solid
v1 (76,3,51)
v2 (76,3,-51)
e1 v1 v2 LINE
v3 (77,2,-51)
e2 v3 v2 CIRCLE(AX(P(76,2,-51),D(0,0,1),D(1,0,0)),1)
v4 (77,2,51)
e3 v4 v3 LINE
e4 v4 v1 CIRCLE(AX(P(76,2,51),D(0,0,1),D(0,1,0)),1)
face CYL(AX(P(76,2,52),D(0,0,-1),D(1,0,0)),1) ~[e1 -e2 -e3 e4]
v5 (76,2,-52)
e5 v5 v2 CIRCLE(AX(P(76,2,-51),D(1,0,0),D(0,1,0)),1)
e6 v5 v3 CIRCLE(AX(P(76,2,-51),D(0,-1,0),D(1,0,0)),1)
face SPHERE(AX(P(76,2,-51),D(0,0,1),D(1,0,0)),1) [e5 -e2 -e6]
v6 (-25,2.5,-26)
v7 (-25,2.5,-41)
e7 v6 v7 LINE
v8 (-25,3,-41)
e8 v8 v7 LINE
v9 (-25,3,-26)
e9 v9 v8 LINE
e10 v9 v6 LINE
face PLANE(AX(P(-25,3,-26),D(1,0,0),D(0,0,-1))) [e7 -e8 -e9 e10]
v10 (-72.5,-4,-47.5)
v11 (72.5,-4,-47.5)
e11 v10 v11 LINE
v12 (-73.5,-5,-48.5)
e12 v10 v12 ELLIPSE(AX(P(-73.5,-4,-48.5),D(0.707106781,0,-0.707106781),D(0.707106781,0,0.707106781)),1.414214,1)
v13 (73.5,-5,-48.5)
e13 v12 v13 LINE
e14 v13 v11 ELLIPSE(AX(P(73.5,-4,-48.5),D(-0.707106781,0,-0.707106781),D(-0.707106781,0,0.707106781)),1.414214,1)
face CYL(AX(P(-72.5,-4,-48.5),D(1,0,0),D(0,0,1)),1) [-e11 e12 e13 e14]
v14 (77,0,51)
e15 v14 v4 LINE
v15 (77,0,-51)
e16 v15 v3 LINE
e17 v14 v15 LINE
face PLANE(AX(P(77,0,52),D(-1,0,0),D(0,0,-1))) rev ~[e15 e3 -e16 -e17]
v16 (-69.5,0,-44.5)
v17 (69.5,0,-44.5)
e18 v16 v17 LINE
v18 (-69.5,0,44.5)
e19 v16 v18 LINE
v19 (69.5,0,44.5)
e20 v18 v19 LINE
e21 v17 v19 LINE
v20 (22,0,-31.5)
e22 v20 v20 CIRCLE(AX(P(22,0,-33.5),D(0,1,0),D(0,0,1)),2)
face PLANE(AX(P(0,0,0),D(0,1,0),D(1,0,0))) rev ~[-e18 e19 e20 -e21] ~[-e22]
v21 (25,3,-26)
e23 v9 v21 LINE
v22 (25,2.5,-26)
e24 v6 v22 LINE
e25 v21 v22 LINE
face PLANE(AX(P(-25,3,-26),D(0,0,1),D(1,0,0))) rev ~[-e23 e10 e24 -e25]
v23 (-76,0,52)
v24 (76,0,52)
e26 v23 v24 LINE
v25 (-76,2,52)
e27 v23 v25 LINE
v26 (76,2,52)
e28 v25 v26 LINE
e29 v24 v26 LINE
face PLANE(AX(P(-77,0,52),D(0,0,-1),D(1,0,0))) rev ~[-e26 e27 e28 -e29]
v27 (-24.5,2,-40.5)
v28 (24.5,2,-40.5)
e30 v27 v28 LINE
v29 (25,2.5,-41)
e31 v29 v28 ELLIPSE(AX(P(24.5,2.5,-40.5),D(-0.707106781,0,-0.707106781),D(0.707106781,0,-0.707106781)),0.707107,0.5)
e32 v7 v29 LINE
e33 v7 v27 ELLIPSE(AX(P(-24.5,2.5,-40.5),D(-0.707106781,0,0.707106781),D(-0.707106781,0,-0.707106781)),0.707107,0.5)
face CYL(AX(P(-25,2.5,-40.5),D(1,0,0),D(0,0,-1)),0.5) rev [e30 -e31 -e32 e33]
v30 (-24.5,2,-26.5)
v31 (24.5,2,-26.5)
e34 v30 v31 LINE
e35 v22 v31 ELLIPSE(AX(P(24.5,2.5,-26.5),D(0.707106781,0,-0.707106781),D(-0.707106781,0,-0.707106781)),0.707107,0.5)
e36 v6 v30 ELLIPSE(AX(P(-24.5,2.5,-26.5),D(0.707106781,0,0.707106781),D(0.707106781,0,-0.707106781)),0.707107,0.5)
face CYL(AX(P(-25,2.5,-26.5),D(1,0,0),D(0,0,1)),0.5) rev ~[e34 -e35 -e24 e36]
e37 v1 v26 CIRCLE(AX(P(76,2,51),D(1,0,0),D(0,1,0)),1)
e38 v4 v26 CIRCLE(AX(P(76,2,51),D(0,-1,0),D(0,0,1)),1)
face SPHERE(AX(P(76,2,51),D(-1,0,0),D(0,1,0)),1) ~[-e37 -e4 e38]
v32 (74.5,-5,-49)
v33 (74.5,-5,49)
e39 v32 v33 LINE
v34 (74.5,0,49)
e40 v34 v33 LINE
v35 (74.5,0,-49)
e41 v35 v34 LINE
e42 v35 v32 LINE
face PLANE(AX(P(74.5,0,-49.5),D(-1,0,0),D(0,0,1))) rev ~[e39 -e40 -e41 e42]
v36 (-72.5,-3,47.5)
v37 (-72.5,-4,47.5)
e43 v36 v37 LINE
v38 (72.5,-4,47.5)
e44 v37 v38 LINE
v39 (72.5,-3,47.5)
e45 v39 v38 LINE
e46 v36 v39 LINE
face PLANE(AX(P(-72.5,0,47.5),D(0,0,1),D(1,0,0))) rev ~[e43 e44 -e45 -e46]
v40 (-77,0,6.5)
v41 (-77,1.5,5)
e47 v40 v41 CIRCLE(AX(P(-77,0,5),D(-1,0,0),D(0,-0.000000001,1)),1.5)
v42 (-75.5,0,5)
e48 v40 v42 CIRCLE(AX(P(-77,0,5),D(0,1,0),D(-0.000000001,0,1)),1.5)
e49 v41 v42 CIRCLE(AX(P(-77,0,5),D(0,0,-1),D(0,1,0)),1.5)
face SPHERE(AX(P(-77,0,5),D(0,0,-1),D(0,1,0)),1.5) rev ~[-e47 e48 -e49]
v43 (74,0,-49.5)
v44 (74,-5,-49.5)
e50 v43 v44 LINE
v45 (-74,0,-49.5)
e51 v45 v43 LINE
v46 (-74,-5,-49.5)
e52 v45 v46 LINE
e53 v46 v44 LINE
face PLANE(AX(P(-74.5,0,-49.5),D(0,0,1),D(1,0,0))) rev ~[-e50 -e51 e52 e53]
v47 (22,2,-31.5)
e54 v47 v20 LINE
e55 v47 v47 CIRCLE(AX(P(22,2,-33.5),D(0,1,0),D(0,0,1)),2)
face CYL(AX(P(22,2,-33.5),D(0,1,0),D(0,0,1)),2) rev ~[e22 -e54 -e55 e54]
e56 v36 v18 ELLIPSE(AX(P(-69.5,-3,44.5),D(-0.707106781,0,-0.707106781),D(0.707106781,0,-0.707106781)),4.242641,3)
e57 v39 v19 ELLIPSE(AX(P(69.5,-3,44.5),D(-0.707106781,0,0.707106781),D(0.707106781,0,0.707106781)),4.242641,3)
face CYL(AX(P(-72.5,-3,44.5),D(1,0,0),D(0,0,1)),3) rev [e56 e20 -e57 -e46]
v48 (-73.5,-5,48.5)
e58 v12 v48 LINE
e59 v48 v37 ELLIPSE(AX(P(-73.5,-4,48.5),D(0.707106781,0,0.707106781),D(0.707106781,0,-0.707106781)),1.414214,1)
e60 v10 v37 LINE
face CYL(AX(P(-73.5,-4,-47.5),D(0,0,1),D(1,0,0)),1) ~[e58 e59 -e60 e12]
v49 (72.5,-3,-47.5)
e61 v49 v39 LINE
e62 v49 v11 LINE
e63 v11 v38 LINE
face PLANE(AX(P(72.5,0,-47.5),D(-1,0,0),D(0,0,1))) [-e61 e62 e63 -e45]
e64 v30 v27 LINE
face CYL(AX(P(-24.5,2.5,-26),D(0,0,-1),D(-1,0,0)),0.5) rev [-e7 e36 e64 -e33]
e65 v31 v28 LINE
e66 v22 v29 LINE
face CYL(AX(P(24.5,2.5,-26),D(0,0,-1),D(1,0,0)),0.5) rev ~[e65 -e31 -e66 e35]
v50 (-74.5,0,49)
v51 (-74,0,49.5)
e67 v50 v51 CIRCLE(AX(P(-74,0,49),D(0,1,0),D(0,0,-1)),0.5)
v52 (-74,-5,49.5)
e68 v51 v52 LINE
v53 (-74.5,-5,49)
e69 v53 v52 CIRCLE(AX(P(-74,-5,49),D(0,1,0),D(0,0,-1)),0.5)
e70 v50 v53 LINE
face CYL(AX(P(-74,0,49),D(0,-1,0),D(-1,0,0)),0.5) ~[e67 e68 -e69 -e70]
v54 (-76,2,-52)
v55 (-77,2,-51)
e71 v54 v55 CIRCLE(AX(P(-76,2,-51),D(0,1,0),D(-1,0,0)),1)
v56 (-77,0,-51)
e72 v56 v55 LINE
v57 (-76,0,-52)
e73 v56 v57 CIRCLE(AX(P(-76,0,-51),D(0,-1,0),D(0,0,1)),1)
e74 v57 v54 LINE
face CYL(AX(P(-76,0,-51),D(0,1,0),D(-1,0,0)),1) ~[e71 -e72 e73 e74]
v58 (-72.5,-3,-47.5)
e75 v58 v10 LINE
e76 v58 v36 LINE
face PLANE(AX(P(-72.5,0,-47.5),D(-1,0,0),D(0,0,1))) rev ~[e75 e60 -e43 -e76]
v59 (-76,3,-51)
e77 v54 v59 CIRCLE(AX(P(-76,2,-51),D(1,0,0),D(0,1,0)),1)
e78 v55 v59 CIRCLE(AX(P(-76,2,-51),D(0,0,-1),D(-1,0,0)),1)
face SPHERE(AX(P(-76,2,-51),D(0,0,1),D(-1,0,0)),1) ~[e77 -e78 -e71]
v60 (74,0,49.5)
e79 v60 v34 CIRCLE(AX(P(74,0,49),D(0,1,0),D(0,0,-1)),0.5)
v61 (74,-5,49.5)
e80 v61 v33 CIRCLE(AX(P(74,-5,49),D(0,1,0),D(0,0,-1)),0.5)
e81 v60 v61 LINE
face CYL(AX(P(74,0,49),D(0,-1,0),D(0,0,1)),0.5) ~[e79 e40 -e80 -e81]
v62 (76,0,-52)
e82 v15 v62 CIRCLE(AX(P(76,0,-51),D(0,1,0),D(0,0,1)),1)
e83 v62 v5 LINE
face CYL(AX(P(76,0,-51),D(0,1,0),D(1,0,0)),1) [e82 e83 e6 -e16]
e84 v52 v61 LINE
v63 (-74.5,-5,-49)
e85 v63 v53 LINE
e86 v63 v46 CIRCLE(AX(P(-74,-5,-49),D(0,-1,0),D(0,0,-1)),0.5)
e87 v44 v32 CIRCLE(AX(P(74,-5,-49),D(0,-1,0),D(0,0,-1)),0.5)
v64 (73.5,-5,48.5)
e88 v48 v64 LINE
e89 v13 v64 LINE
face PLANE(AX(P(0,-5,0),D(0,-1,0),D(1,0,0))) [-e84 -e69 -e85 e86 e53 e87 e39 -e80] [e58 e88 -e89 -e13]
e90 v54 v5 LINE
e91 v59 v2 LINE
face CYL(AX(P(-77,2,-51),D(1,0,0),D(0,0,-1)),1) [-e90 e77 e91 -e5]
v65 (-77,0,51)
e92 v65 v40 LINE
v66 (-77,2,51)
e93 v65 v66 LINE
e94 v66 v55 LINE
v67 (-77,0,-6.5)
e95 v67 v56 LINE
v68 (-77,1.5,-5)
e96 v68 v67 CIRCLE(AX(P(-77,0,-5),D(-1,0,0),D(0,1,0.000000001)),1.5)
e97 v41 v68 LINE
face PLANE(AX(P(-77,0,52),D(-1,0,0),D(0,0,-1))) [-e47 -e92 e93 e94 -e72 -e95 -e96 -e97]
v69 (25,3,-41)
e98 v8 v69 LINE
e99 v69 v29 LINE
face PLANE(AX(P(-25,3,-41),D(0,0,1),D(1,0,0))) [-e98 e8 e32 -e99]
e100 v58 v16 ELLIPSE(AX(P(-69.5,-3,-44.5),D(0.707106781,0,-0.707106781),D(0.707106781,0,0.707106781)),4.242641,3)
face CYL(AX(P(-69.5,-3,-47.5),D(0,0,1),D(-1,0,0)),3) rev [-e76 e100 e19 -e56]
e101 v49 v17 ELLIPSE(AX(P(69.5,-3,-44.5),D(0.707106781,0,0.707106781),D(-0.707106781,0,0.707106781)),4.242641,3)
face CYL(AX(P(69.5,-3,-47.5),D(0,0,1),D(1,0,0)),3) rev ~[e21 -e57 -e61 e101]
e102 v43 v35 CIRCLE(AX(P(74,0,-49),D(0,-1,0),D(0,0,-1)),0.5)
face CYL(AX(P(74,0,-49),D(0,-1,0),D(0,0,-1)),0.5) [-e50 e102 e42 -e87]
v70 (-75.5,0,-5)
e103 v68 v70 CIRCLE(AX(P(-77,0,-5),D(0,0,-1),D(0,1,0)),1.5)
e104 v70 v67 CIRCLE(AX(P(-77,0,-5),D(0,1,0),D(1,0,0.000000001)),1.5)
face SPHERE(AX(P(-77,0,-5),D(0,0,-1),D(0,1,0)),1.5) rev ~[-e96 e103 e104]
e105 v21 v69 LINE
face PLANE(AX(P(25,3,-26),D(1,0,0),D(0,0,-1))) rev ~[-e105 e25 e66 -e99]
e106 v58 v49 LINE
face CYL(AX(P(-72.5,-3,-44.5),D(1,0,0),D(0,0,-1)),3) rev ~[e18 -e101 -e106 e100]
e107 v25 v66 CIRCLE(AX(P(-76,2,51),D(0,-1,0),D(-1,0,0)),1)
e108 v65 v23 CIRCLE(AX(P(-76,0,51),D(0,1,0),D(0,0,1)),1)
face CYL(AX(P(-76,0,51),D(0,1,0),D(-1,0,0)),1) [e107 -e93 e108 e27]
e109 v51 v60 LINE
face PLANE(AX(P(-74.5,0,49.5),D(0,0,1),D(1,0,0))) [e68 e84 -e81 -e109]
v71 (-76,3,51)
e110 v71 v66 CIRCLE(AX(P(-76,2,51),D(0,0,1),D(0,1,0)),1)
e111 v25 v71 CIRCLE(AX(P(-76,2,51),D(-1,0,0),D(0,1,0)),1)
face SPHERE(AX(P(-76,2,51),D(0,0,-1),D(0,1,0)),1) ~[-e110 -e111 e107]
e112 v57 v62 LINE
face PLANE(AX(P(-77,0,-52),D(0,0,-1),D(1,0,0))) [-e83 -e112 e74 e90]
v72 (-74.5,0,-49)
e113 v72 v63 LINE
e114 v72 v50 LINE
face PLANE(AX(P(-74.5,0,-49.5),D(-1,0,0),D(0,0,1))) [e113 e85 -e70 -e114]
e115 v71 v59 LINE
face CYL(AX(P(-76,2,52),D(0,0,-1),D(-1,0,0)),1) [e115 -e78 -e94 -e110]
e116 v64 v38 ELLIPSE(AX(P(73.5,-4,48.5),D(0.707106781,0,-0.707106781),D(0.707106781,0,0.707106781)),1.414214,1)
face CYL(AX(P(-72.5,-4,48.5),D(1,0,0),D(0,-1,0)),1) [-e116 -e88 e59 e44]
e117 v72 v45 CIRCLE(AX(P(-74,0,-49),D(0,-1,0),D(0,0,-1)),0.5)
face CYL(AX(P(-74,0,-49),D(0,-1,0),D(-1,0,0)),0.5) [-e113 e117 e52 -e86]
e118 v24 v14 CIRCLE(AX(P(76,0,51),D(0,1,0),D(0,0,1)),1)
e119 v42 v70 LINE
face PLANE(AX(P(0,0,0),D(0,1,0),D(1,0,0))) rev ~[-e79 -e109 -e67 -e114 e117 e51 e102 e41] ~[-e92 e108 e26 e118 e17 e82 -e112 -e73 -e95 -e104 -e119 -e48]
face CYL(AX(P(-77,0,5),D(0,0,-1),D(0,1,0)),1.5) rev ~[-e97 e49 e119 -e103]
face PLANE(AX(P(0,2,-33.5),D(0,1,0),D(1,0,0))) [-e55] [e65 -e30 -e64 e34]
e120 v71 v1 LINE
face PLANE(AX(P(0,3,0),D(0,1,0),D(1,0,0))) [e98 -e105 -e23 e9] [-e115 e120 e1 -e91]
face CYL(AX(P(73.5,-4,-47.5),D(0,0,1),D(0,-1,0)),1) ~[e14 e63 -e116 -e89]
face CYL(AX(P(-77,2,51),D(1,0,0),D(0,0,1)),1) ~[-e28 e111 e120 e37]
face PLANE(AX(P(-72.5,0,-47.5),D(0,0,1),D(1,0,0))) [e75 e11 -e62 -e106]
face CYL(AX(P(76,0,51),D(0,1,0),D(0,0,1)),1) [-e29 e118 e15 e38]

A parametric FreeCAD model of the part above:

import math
import FreeCAD as App
import Part
import Sketcher
from FreeCAD import Vector
Q = App.Units.Quantity


def edges_at(feature, points):
    """Names of the edges that pass closest to the given points."""
    edges = feature.Shape.Edges
    near = lambda p: min(range(len(edges)), key=lambda i: edges[i].distToShape(Part.Vertex(*p))[0])
    return sorted({f"Edge{near(p) + 1}" for p in points})


def add_polygon(sketch, points):
    """Adds a closed chain of lines whose ends are joined by coincident constraints."""
    first, n = sketch.GeometryCount, len(points)
    for a, b in zip(points, points[1:] + points[:1]):
        sketch.addGeometry(Part.LineSegment(App.Vector(*a, 0), App.Vector(*b, 0)), False)
    for i in range(n):
        sketch.addConstraint(Sketcher.Constraint("Coincident", first + i, 2, first + (i + 1) % n, 1))

doc = App.newDocument("Part")
body = doc.addObject("PartDesign::Body", "Body")

sketch1 = body.newObject("Sketcher::SketchObject", "Sketch")
sketch1.AttachmentSupport = (doc.getObject("XZ_Plane"), [""])
sketch1.MapMode = "FlatFace"
add_polygon(sketch1, [(-77, -52), (-77, 52), (77, 52), (77, -52)])
sketch1.addConstraint([
    Sketcher.Constraint("Vertical", 0),
    Sketcher.Constraint("Horizontal", 1),
    Sketcher.Constraint("Vertical", 2),
    Sketcher.Constraint("Horizontal", 3),
    Sketcher.Constraint("Symmetric", 0, 2, 2, 2, -1, 1),
    Sketcher.Constraint("DistanceX", 1, 1, 1, 2, Q("154 mm")),
    Sketcher.Constraint("DistanceY", 0, 1, 0, 2, Q("104 mm")),
])
pad1 = body.newObject("PartDesign::Pad", "Pad")
pad1.Profile = sketch1
pad1.Length = 3
pad1.Reversed = True
doc.recompute()

fillet = body.newObject("PartDesign::Fillet", "Fillet")
fillet.Base = (pad1, edges_at(pad1, [
    (-77, 3, 0),
    (0, 3, 52),
    (77, 3, 0),
    (77, 1.5, 52),
    (-77, 1.5, 52),
    (-77, 1.5, -52),
    (77, 1.5, -52),
    (0, 3, -52),
]))
fillet.Radius = 1

sketch2 = body.newObject("Sketcher::SketchObject", "Sketch001")
sketch2.AttachmentSupport = (doc.getObject("XZ_Plane"), [""])
sketch2.MapMode = "FlatFace"
add_polygon(sketch2, [(-74.5, 49.5), (-74.5, -49.5), (74.5, -49.5), (74.5, 49.5)])
add_polygon(sketch2, [(72.5, -47.5), (-72.5, -47.5), (-72.5, 47.5), (72.5, 47.5)])
sketch2.addConstraint([
    Sketcher.Constraint("Vertical", 0),
    Sketcher.Constraint("Horizontal", 1),
    Sketcher.Constraint("Vertical", 2),
    Sketcher.Constraint("Horizontal", 3),
    Sketcher.Constraint("Horizontal", 4),
    Sketcher.Constraint("Vertical", 5),
    Sketcher.Constraint("Horizontal", 6),
    Sketcher.Constraint("Vertical", 7),
    Sketcher.Constraint("Symmetric", 0, 2, 2, 2, -1, 1),
    Sketcher.Constraint("Symmetric", 4, 2, 6, 2, -1, 1),
    Sketcher.Constraint("DistanceX", 1, 1, 1, 2, Q("149 mm")),
    Sketcher.Constraint("DistanceX", 4, 2, 4, 1, Q("145 mm")),
    Sketcher.Constraint("DistanceY", 0, 2, 0, 1, Q("99 mm")),
    Sketcher.Constraint("DistanceY", 5, 1, 5, 2, Q("95 mm")),
])
pad2 = body.newObject("PartDesign::Pad", "Pad001")
pad2.Profile = sketch2
pad2.Length = 5
doc.recompute()

fillet2 = body.newObject("PartDesign::Fillet", "Fillet001")
fillet2.Base = (pad2, edges_at(pad2, [
    (72.5, 0, 0),
    (0, 0, 47.5),
    (-72.5, 0, 0),
    (0, 0, -47.5),
]))
fillet2.Radius = 3
doc.recompute()

fillet3 = body.newObject("PartDesign::Fillet", "Fillet002")
fillet3.Base = (fillet2, edges_at(fillet2, [
    (72.5, -5, 0),
    (0, -5, 47.5),
    (-72.5, -5, 0),
    (0, -5, -47.5),
]))
fillet3.Radius = 1

sketch3 = body.newObject("Sketcher::SketchObject", "Sketch002")
sketch3.AttachmentSupport = (doc.getObject("YZ_Plane"), [""])
sketch3.MapMode = "FlatFace"
sketch3.AttachmentOffset = App.Placement(Vector(0, 0, -77), App.Rotation())
sketch3.addGeometry([
    Part.LineSegment(Vector(0, -6.5, 0), Vector(0, 6.5, 0)),
    Part.ArcOfCircle(Part.Circle(Vector(0, 5, 0), Vector(0, 0, 1), 1.5), math.radians(0), math.radians(90)),
    Part.LineSegment(Vector(1.5, 5, 0), Vector(1.5, -5, 0)),
    Part.ArcOfCircle(Part.Circle(Vector(0, -5, 0), Vector(0, 0, 1), 1.5), math.radians(-90), math.radians(0)),
], False)
sketch3.addConstraint([
    Sketcher.Constraint("Coincident", 0, 2, 1, 2),
    Sketcher.Constraint("Tangent", 1, 1, 2, 1),
    Sketcher.Constraint("Tangent", 2, 2, 3, 2),
    Sketcher.Constraint("Coincident", 3, 1, 0, 1),
    Sketcher.Constraint("Vertical", 0),
    Sketcher.Constraint("Vertical", 2),
    Sketcher.Constraint("Equal", 1, 3),
    Sketcher.Constraint("Symmetric", 1, 3, 3, 3, -1, 1),
    Sketcher.Constraint("PointOnObject", 0, 2, -2),
    Sketcher.Constraint("Radius", 1, Q("1.5 mm")),
    Sketcher.Constraint("DistanceY", 0, 1, 0, 2, Q("13 mm")),
])
groove = body.newObject("PartDesign::Groove", "Groove")
groove.Profile = sketch3
groove.ReferenceAxis = (sketch3, ["V_Axis"])
groove.Angle = 90
groove.Reversed = True

sketch4 = body.newObject("Sketcher::SketchObject", "Sketch003")
sketch4.AttachmentSupport = (doc.getObject("XZ_Plane"), [""])
sketch4.MapMode = "FlatFace"
sketch4.AttachmentOffset = App.Placement(Vector(0, 0, -3), App.Rotation())
add_polygon(sketch4, [(-25, -41), (-25, -26), (25, -26), (25, -41)])
sketch4.addConstraint([
    Sketcher.Constraint("Vertical", 0),
    Sketcher.Constraint("Horizontal", 1),
    Sketcher.Constraint("Vertical", 2),
    Sketcher.Constraint("Horizontal", 3),
    Sketcher.Constraint("DistanceX", 1, 1, 1, 2, Q("50 mm")),
    Sketcher.Constraint("DistanceY", 0, 1, 0, 2, Q("15 mm")),
    Sketcher.Constraint("DistanceX", 0, 2, -1, 1, Q("25 mm")),
    Sketcher.Constraint("DistanceY", 0, 2, -1, 1, Q("26 mm")),
])
pocket1 = body.newObject("PartDesign::Pocket", "Pocket")
pocket1.Profile = sketch4
pocket1.Length = 1
pocket1.Reversed = True
doc.recompute()

fillet4 = body.newObject("PartDesign::Fillet", "Fillet003")
fillet4.Base = (pocket1, edges_at(pocket1, [
    (74.5, -2.5, -49.5),
    (74.5, -2.5, 49.5),
    (-74.5, -2.5, 49.5),
    (-74.5, -2.5, -49.5),
]))
fillet4.Radius = 0.5

sketch5 = body.newObject("Sketcher::SketchObject", "Sketch004")
sketch5.AttachmentSupport = (doc.getObject("XZ_Plane"), [""])
sketch5.MapMode = "FlatFace"
sketch5.AttachmentOffset = App.Placement(Vector(0, 0, -2), App.Rotation())
sketch5.addGeometry(Part.Circle(Vector(22, -33.5, 0), Vector(0, 0, 1), 2), False)
sketch5.addConstraint([
    Sketcher.Constraint("Diameter", 0, Q("4 mm")),
    Sketcher.Constraint("DistanceX", -1, 1, 0, 3, Q("22 mm")),
    Sketcher.Constraint("DistanceY", 0, 3, -1, 1, Q("33.5 mm")),
])
pocket2 = body.newObject("PartDesign::Pocket", "Pocket001")
pocket2.Profile = sketch5
pocket2.Length = 5
pocket2.Reversed = True
doc.recompute()

fillet5 = body.newObject("PartDesign::Fillet", "Fillet004")
fillet5.Base = (pocket2, edges_at(pocket2, [
    (25, 2, -33.5),
    (0, 2, -26),
    (-25, 2, -33.5),
    (0, 2, -41),
]))
fillet5.Radius = 0.5

doc.recompute()
